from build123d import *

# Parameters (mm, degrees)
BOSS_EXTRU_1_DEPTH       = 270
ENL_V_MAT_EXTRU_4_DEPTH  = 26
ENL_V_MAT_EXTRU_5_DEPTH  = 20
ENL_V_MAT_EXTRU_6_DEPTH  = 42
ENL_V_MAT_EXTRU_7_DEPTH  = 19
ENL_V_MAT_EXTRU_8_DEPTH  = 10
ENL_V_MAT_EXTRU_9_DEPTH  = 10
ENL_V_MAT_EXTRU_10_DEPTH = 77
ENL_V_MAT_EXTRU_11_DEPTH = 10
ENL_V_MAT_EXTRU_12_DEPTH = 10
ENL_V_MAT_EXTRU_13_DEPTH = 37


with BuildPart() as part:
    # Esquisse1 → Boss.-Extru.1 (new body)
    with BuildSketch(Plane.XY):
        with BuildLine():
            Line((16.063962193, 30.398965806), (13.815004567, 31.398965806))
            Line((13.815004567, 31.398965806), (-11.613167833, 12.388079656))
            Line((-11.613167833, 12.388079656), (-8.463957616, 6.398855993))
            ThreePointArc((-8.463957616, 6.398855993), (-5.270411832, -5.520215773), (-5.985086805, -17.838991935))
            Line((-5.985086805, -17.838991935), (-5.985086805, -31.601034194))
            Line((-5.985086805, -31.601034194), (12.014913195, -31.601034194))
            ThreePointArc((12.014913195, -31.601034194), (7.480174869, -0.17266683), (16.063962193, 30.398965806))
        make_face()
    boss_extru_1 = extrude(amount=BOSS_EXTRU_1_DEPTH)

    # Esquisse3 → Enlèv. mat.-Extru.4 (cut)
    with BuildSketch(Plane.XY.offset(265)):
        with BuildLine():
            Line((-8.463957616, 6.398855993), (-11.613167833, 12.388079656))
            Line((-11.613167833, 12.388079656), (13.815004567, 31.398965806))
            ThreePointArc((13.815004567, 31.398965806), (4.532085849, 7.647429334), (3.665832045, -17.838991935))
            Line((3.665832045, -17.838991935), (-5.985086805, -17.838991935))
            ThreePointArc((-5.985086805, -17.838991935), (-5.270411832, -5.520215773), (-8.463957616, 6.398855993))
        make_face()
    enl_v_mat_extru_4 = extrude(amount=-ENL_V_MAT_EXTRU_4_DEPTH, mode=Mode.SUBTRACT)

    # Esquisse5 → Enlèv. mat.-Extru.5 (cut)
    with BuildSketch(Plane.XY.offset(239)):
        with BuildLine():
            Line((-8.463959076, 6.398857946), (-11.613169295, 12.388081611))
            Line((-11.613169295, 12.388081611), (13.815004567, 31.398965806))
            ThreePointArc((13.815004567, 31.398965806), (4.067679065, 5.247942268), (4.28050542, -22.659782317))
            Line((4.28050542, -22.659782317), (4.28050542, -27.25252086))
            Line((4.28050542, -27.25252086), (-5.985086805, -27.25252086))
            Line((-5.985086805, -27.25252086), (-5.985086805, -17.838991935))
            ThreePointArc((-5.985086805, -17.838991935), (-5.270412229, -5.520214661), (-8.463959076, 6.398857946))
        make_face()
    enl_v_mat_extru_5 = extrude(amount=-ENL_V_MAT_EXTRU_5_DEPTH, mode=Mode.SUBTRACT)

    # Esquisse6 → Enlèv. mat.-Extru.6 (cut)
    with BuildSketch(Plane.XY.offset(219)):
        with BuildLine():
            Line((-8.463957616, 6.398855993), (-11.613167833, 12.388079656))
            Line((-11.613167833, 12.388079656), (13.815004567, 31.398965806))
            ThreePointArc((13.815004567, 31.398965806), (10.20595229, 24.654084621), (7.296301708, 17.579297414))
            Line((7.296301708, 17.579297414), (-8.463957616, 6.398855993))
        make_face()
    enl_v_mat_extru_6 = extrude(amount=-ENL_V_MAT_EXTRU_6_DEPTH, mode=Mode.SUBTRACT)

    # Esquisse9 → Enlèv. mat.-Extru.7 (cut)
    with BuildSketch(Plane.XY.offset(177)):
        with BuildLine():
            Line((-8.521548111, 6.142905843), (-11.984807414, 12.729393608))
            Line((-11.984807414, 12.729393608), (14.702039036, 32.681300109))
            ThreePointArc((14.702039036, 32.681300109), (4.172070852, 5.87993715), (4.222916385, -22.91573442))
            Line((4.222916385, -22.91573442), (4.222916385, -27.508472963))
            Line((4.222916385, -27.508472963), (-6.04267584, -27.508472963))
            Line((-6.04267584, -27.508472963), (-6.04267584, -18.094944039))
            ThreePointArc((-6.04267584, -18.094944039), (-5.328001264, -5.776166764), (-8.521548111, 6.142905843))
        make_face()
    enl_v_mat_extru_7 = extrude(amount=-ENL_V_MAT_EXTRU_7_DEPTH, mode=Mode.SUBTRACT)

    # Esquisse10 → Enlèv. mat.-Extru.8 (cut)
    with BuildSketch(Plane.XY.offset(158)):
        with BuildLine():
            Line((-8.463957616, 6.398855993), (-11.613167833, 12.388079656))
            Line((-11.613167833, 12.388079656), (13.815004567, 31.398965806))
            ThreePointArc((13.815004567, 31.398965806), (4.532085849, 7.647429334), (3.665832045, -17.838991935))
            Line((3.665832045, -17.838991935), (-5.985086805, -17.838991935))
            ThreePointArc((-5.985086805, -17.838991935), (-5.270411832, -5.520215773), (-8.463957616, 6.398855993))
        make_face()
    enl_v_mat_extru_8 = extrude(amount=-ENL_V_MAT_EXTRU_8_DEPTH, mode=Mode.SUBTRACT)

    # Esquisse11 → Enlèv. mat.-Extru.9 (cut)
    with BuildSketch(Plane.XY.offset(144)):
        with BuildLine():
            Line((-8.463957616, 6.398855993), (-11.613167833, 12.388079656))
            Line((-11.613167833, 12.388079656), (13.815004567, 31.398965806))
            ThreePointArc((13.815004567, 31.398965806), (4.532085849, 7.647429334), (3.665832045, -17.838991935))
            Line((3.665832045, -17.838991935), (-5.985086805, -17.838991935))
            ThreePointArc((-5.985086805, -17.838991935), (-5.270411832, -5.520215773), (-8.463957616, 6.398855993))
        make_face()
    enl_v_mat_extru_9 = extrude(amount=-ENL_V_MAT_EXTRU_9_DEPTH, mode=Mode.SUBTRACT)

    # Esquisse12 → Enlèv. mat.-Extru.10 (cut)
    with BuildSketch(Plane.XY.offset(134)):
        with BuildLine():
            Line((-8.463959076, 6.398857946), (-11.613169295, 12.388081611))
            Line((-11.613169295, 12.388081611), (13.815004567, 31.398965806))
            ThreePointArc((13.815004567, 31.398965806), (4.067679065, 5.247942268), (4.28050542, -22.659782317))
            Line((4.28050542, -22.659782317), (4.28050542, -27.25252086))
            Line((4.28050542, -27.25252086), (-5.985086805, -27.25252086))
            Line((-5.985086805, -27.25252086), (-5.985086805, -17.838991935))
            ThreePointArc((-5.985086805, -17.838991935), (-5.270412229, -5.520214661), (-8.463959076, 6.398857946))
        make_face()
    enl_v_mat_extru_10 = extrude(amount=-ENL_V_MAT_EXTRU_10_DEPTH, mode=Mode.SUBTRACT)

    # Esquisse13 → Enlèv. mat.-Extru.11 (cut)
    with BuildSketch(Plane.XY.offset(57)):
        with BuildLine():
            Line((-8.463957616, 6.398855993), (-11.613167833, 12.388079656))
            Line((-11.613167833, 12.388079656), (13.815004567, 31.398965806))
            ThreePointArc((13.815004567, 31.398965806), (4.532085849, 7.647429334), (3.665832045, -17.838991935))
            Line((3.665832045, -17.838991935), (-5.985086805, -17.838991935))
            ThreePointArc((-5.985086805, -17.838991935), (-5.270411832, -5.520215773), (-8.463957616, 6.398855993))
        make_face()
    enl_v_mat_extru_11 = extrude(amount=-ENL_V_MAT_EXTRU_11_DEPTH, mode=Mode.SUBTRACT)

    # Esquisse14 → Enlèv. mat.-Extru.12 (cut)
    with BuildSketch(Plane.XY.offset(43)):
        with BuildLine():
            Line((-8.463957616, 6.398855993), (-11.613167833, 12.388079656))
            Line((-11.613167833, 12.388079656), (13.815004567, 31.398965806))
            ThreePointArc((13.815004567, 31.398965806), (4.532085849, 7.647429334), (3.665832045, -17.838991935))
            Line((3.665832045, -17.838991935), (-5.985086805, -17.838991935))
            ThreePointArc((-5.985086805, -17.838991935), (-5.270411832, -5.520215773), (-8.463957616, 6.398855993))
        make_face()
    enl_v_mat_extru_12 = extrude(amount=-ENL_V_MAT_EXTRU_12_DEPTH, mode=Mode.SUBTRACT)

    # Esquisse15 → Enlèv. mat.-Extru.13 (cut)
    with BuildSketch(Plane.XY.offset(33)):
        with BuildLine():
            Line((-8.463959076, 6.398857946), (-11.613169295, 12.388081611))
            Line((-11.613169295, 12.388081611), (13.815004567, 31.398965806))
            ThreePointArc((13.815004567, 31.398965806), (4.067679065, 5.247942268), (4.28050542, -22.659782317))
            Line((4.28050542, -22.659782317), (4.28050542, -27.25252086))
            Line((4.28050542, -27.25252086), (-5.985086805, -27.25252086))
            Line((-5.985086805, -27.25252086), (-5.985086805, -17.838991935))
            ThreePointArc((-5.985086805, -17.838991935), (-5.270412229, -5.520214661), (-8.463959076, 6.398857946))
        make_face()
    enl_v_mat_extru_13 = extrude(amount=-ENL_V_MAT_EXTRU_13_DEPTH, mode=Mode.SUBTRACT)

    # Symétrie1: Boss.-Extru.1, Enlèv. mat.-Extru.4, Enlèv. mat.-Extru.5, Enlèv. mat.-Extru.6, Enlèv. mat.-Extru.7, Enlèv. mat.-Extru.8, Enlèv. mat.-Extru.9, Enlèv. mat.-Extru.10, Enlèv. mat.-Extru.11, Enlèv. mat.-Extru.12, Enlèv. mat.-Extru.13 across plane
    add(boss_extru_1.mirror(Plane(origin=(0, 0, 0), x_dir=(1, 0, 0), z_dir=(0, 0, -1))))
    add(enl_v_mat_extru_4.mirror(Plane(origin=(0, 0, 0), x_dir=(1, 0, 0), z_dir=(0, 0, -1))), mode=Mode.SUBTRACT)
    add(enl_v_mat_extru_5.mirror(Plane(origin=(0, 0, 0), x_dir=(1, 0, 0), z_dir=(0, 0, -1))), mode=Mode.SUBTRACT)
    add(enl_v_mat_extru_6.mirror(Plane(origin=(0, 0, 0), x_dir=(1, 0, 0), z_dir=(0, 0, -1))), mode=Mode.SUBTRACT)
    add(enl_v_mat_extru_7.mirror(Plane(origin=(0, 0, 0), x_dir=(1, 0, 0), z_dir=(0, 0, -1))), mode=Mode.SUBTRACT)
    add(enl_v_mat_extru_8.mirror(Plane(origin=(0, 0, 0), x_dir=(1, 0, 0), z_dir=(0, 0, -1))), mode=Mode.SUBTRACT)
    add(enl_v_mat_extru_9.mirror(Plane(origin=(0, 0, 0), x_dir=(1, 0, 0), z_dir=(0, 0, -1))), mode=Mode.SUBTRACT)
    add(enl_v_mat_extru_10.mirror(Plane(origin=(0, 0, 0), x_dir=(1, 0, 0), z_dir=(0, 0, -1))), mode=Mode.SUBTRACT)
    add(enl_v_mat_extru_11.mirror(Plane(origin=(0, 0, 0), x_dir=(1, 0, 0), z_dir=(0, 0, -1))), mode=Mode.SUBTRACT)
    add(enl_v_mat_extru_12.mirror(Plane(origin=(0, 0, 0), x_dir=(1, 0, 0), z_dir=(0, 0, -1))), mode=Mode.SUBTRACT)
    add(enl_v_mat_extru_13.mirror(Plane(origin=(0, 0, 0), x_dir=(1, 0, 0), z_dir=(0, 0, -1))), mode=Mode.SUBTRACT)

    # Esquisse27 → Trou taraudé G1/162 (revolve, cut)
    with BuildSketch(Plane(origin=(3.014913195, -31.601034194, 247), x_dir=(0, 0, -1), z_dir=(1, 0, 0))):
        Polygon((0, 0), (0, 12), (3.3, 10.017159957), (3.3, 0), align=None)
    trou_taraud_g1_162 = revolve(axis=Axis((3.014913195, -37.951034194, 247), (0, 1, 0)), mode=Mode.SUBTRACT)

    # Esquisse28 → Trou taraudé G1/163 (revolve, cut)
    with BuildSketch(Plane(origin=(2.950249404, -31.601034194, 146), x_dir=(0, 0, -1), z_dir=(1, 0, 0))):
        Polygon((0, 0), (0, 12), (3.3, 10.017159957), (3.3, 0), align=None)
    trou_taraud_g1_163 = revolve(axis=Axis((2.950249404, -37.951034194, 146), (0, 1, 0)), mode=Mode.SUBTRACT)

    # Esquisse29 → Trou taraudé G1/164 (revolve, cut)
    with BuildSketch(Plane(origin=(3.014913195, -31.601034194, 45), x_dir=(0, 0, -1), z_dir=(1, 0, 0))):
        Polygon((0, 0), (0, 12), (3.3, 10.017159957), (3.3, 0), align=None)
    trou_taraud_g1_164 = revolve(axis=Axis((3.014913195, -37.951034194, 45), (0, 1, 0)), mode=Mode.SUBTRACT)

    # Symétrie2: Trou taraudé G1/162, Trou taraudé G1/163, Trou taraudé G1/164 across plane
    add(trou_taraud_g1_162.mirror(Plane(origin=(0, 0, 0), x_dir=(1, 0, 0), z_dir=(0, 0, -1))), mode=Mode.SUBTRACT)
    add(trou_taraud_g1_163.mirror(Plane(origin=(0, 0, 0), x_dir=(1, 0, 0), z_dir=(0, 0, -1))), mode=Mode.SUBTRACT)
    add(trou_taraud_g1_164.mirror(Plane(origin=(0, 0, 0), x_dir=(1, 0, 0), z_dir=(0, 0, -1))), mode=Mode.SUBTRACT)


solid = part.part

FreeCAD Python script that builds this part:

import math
import FreeCAD as App
import Part
import Sketcher
Q = App.Units.Quantity


def add_polygon(sketch, points):
    """Adds a closed chain of lines whose ends are joined by coincident constraints."""
    first, n = sketch.GeometryCount, len(points)
    for a, b in zip(points, points[1:] + points[:1]):
        sketch.addGeometry(Part.LineSegment(App.Vector(*a, 0), App.Vector(*b, 0)), False)
    for i in range(n):
        sketch.addConstraint(Sketcher.Constraint("Coincident", first + i, 2, first + (i + 1) % n, 1))

doc = App.newDocument("Part")
params = doc.addObject("Spreadsheet::Sheet", "Params")
for row, (alias, value) in enumerate([
    ("sketch1_width", "18 mm"),
    ("pad1_length", "270 mm"),
    ("pocket1_length", "26 mm"),
    ("pocket2_length", "20 mm"),
    ("pocket3_length", "42 mm"),
    ("pocket4_length", "19 mm"),
    ("pocket5_length", "10 mm"),
    ("pocket6_length", "10 mm"),
    ("pocket7_length", "77 mm"),
    ("pocket8_length", "10 mm"),
    ("pocket9_length", "10 mm"),
    ("pocket10_length", "37 mm"),
    ("sketch12_width", "12 mm"),
    ("sketch12_height", "3.3 mm"),
    ("groove_angle", "360 deg"),
    ("sketch13_width", "12 mm"),
    ("sketch13_height", "3.3 mm"),
    ("groove2_angle", "360 deg"),
    ("sketch14_width", "12 mm"),
    ("sketch14_height", "3.3 mm"),
    ("groove3_angle", "360 deg"),
], start=1):
    params.set(f"A{row}", alias)
    params.set(f"B{row}", "=" + value)
    params.setAlias(f"B{row}", alias)

body = doc.addObject("PartDesign::Body", "Body")

# Sketch on XY plane
sketch1 = doc.addObject("Sketcher::SketchObject", "Sketch")
body.addObject(sketch1)
sketch1.AttachmentSupport = (doc.XY_Plane, [""])
sketch1.MapMode = "FlatFace"
sketch1.addGeometry(Part.LineSegment(App.Vector(16.1, 30.4, 0), App.Vector(13.8, 31.4, 0)), False)
sketch1.addGeometry(Part.LineSegment(App.Vector(13.8, 31.4, 0), App.Vector(-11.6, 12.4, 0)), False)
sketch1.addGeometry(Part.LineSegment(App.Vector(-11.6, 12.4, 0), App.Vector(-8.5, 6.4, 0)), False)
sketch1.addGeometry(Part.ArcOfCircle(Part.Circle(App.Vector(-43.8, -9.5, 0), App.Vector(0, 0, 1), 38.8), math.radians(-12), math.radians(24)), False)
sketch1.addGeometry(Part.LineSegment(App.Vector(-6, -17.8, 0), App.Vector(-6, -31.6, 0)), False)
sketch1.addGeometry(Part.LineSegment(App.Vector(-6, -31.6, 0), App.Vector(12, -31.6, 0)), False)
sketch1.addGeometry(Part.ArcOfCircle(Part.Circle(App.Vector(84, -5.2, 0), App.Vector(0, 0, 1), 76.7), math.radians(152), math.radians(200)), False)
sketch1.addConstraint(Sketcher.Constraint("Coincident", 0, 2, 1, 1))
sketch1.addConstraint(Sketcher.Constraint("Coincident", 1, 2, 2, 1))
sketch1.addConstraint(Sketcher.Constraint("Coincident", 2, 2, 3, 2))
sketch1.addConstraint(Sketcher.Constraint("Coincident", 3, 1, 4, 1))
sketch1.addConstraint(Sketcher.Constraint("Coincident", 4, 2, 5, 1))
sketch1.addConstraint(Sketcher.Constraint("Coincident", 5, 2, 6, 2))
sketch1.addConstraint(Sketcher.Constraint("Coincident", 6, 1, 0, 1))
sketch1.addConstraint(Sketcher.Constraint("Vertical", 4))
sketch1.addConstraint(Sketcher.Constraint("Horizontal", 5))
sketch1.addConstraint(Sketcher.Constraint("DistanceX", 5, 1, 5, 2, Q("18 mm")))
sketch1.addConstraint(Sketcher.Constraint("DistanceY", 4, 2, 0, 2, Q("63 mm")))
sketch1.addConstraint(Sketcher.Constraint("DistanceY", 6, 1, 0, 2, Q("1 mm")))
sketch1.addConstraint(Sketcher.Constraint("Radius", 3, Q("38.757505 mm")))
sketch1.addConstraint(Sketcher.Constraint("Radius", 6, Q("76.697853 mm")))
sketch1.addConstraint(Sketcher.Constraint("DistanceX", 3, 3, 0, 2, Q("57.641802 mm")))
sketch1.addConstraint(Sketcher.Constraint("DistanceY", 6, 3, 2, 2, Q("11.5698 mm")))
sketch1.addConstraint(Sketcher.Constraint("Distance", 0, Q("2.461262 mm")))
sketch1.addConstraint(Sketcher.Constraint("DistanceY", 4, 2, 4, 1, Q("13.762042 mm")))
sketch1.addConstraint(Sketcher.Constraint("DistanceX", -1, 1, 6, 3, Q("84.014989 mm")))
sketch1.addConstraint(Sketcher.Constraint("DistanceY", -1, 1, 1, 2, Q("12.38808 mm")))
sketch1.addConstraint(Sketcher.Constraint("DistanceY", 3, 1, -1, 1, Q("17.838992 mm")))
sketch1.addConstraint(Sketcher.Constraint("DistanceY", 3, 3, 0, 2, Q("40.862448 mm")))
sketch1.addConstraint(Sketcher.Constraint("DistanceX", 3, 3, 1, 2, Q("32.213629 mm")))
sketch1.setExpression("Constraints[9]", "Params.sketch1_width")
pad1 = doc.addObject("PartDesign::Pad", "Pad")
body.addObject(pad1)
pad1.Profile = sketch1
pad1.setExpression("Length", "Params.pad1_length")

# Sketch on XY plane
sketch2 = doc.addObject("Sketcher::SketchObject", "Sketch001")
body.addObject(sketch2)
sketch2.AttachmentSupport = (doc.XY_Plane, [""])
sketch2.MapMode = "FlatFace"
sketch2.AttachmentOffset = App.Placement(App.Vector(0, 0, 265), App.Rotation())
sketch2.addGeometry(Part.LineSegment(App.Vector(-12, 12, 0), App.Vector(-8, 6, 0)), False)
sketch2.addGeometry(Part.ArcOfCircle(Part.Circle(App.Vector(-44, -9, 0), App.Vector(0, 0, 1), 39), math.radians(-12), math.radians(24)), False)
sketch2.addGeometry(Part.LineSegment(App.Vector(-6, -18, 0), App.Vector(4, -18, 0)), False)
sketch2.addGeometry(Part.ArcOfCircle(Part.Circle(App.Vector(79, -8, 0), App.Vector(0, 0, 1), 76), math.radians(149), math.radians(188)), False)
sketch2.addGeometry(Part.LineSegment(App.Vector(14, 31, 0), App.Vector(-12, 12, 0)), False)
sketch2.addConstraint(Sketcher.Constraint("Coincident", 0, 2, 1, 2))
sketch2.addConstraint(Sketcher.Constraint("Coincident", 1, 1, 2, 1))
sketch2.addConstraint(Sketcher.Constraint("Coincident", 2, 2, 3, 2))
sketch2.addConstraint(Sketcher.Constraint("Coincident", 3, 1, 4, 1))
sketch2.addConstraint(Sketcher.Constraint("Coincident", 4, 2, 0, 1))
sketch2.addConstraint(Sketcher.Constraint("Horizontal", 2))
sketch2.addConstraint(Sketcher.Constraint("Radius", 1, Q("38.757505 mm")))
sketch2.addConstraint(Sketcher.Constraint("Radius", 3, Q("75.673474 mm")))
sketch2.addConstraint(Sketcher.Constraint("DistanceX", 4, 2, 2, 2, Q("15.279 mm")))
sketch2.addConstraint(Sketcher.Constraint("DistanceX", 2, 1, 2, 2, Q("9.650919 mm")))
sketch2.addConstraint(Sketcher.Constraint("DistanceX", 1, 3, 3, 1, Q("57.641802 mm")))
sketch2.addConstraint(Sketcher.Constraint("DistanceX", -1, 1, 3, 3, Q("78.64745 mm")))
sketch2.addConstraint(Sketcher.Constraint("DistanceY", 1, 1, -1, 1, Q("17.838992 mm")))
sketch2.addConstraint(Sketcher.Constraint("DistanceY", -1, 1, 4, 2, Q("12.38808 mm")))
sketch2.addConstraint(Sketcher.Constraint("DistanceX", 1, 3, 0, 2, Q("35.36284 mm")))
sketch2.addConstraint(Sketcher.Constraint("DistanceX", 0, 2, 1, 1, Q("2.478871 mm")))
sketch2.addConstraint(Sketcher.Constraint("DistanceY", 0, 2, 3, 1, Q("25.00011 mm")))
pocket1 = doc.addObject("PartDesign::Pocket", "Pocket")
body.addObject(pocket1)
pocket1.Profile = sketch2
pocket1.setExpression("Length", "Params.pocket1_length")

# Sketch on XY plane
sketch3 = doc.addObject("Sketcher::SketchObject", "Sketch002")
body.addObject(sketch3)
sketch3.AttachmentSupport = (doc.XY_Plane, [""])
sketch3.MapMode = "FlatFace"
sketch3.AttachmentOffset = App.Placement(App.Vector(0, 0, 239), App.Rotation())
sketch3.addGeometry(Part.LineSegment(App.Vector(-11.6, 12.4, 0), App.Vector(-8.5, 6.4, 0)), False)
sketch3.addGeometry(Part.ArcOfCircle(Part.Circle(App.Vector(-43.8, -9.5, 0), App.Vector(0, 0, 1), 38.8), math.radians(-12), math.radians(24)), False)
sketch3.addGeometry(Part.LineSegment(App.Vector(-6, -17.8, 0), App.Vector(-6, -27.3, 0)), False)
sketch3.addGeometry(Part.LineSegment(App.Vector(-6, -27.3, 0), App.Vector(4.3, -27.3, 0)), False)
sketch3.addGeometry(Part.LineSegment(App.Vector(4.3, -27.3, 0), App.Vector(4.3, -22.7, 0)), False)
sketch3.addGeometry(Part.ArcOfCircle(Part.Circle(App.Vector(79.9, -8.1, 0), App.Vector(0, 0, 1), 77), math.radians(149), math.radians(191)), False)
sketch3.addGeometry(Part.LineSegment(App.Vector(13.8, 31.4, 0), App.Vector(-11.6, 12.4, 0)), False)
sketch3.addConstraint(Sketcher.Constraint("Coincident", 0, 2, 1, 2))
sketch3.addConstraint(Sketcher.Constraint("Coincident", 1, 1, 2, 1))
sketch3.addConstraint(Sketcher.Constraint("Coincident", 2, 2, 3, 1))
sketch3.addConstraint(Sketcher.Constraint("Coincident", 3, 2, 4, 1))
sketch3.addConstraint(Sketcher.Constraint("Coincident", 4, 2, 5, 2))
sketch3.addConstraint(Sketcher.Constraint("Coincident", 5, 1, 6, 1))
sketch3.addConstraint(Sketcher.Constraint("Coincident", 6, 2, 0, 1))
sketch3.addConstraint(Sketcher.Constraint("Vertical", 2))
sketch3.addConstraint(Sketcher.Constraint("Horizontal", 3))
sketch3.addConstraint(Sketcher.Constraint("Vertical", 4))
sketch3.addConstraint(Sketcher.Constraint("Radius", 5, Q("77.01161 mm")))
sketch3.addConstraint(Sketcher.Constraint("Radius", 1, Q("38.757505 mm")))
sketch3.addConstraint(Sketcher.Constraint("DistanceY", 2, 2, 2, 1, Q("9.413529 mm")))
sketch3.addConstraint(Sketcher.Constraint("DistanceY", 4, 1, 4, 2, Q("4.592739 mm")))
sketch3.addConstraint(Sketcher.Constraint("DistanceX", 1, 1, 5, 3, Q("85.8938 mm")))
sketch3.addConstraint(Sketcher.Constraint("DistanceY", 4, 2, 1, 3, Q("13.196299 mm")))
sketch3.addConstraint(Sketcher.Constraint("DistanceX", 4, 2, 5, 1, Q("9.534499 mm")))
sketch3.addConstraint(Sketcher.Constraint("DistanceX", 3, 1, 3, 2, Q("10.265592 mm")))
sketch3.addConstraint(Sketcher.Constraint("DistanceX", 0, 2, -1, 1, Q("8.463959 mm")))
sketch3.addConstraint(Sketcher.Constraint("DistanceY", 1, 1, -1, 1, Q("17.838992 mm")))
sketch3.addConstraint(Sketcher.Constraint("DistanceX", 6, 2, -1, 1, Q("11.613169 mm")))
sketch3.addConstraint(Sketcher.Constraint("DistanceY", -1, 1, 6, 2, Q("12.388082 mm")))
sketch3.addConstraint(Sketcher.Constraint("DistanceX", 1, 3, 0, 2, Q("35.362838 mm")))
pocket2 = doc.addObject("PartDesign::Pocket", "Pocket001")
body.addObject(pocket2)
pocket2.Profile = sketch3
pocket2.setExpression("Length", "Params.pocket2_length")

# Sketch on XY plane
sketch4 = doc.addObject("Sketcher::SketchObject", "Sketch003")
body.addObject(sketch4)
sketch4.AttachmentSupport = (doc.XY_Plane, [""])
sketch4.MapMode = "FlatFace"
sketch4.AttachmentOffset = App.Placement(App.Vector(0, 0, 219), App.Rotation())
sketch4.addGeometry(Part.LineSegment(App.Vector(-12, 12, 0), App.Vector(-8, 6, 0)), False)
sketch4.addGeometry(Part.LineSegment(App.Vector(-8, 6, 0), App.Vector(7, 18, 0)), False)
sketch4.addGeometry(Part.ArcOfCircle(Part.Circle(App.Vector(79, -8, 0), App.Vector(0, 0, 1), 76), math.radians(148.95), math.radians(160.54)), False)
sketch4.addGeometry(Part.LineSegment(App.Vector(14, 31, 0), App.Vector(-12, 12, 0)), False)
sketch4.addConstraint(Sketcher.Constraint("Coincident", 0, 2, 1, 1))
sketch4.addConstraint(Sketcher.Constraint("Coincident", 1, 2, 2, 2))
sketch4.addConstraint(Sketcher.Constraint("Coincident", 2, 1, 3, 1))
sketch4.addConstraint(Sketcher.Constraint("Coincident", 3, 2, 0, 1))
sketch4.addConstraint(Sketcher.Constraint("Radius", 2, Q("75.673474 mm")))
sketch4.addConstraint(Sketcher.Constraint("DistanceX", -1, 1, 1, 2, Q("7.296302 mm")))
sketch4.addConstraint(Sketcher.Constraint("Distance", 1, Q("19.323251 mm")))
sketch4.addConstraint(Sketcher.Constraint("DistanceX", -1, 1, 2, 3, Q("78.64745 mm")))
sketch4.addConstraint(Sketcher.Constraint("DistanceY", -1, 1, 3, 2, Q("12.38808 mm")))
sketch4.addConstraint(Sketcher.Constraint("DistanceX", 0, 2, 1, 2, Q("15.760259 mm")))
sketch4.addConstraint(Sketcher.Constraint("DistanceY", 1, 2, 2, 1, Q("13.819668 mm")))
sketch4.addConstraint(Sketcher.Constraint("DistanceX", 3, 2, 0, 2, Q("3.14921 mm")))
sketch4.addConstraint(Sketcher.Constraint("Distance", 0, Q("6.766707 mm")))
pocket3 = doc.addObject("PartDesign::Pocket", "Pocket002")
body.addObject(pocket3)
pocket3.Profile = sketch4
pocket3.setExpression("Length", "Params.pocket3_length")

# Sketch on XY plane
sketch5 = doc.addObject("Sketcher::SketchObject", "Sketch004")
body.addObject(sketch5)
sketch5.AttachmentSupport = (doc.XY_Plane, [""])
sketch5.MapMode = "FlatFace"
sketch5.AttachmentOffset = App.Placement(App.Vector(0, 0, 177), App.Rotation())
sketch5.addGeometry(Part.LineSegment(App.Vector(-12, 12.7, 0), App.Vector(-8.5, 6.1, 0)), False)
sketch5.addGeometry(Part.ArcOfCircle(Part.Circle(App.Vector(-43.9, -9.7, 0), App.Vector(0, 0, 1), 38.8), math.radians(-12), math.radians(24)), False)
sketch5.addGeometry(Part.LineSegment(App.Vector(-6, -18.1, 0), App.Vector(-6, -27.5, 0)), False)
sketch5.addGeometry(Part.LineSegment(App.Vector(-6, -27.5, 0), App.Vector(4.2, -27.5, 0)), False)
sketch5.addGeometry(Part.LineSegment(App.Vector(4.2, -27.5, 0), App.Vector(4.2, -22.9, 0)), False)
sketch5.addGeometry(Part.ArcOfCircle(Part.Circle(App.Vector(79.9, -8.4, 0), App.Vector(0, 0, 1), 77), math.radians(148), math.radians(191)), False)
sketch5.addGeometry(Part.LineSegment(App.Vector(14.7, 32.7, 0), App.Vector(-12, 12.7, 0)), False)
sketch5.addConstraint(Sketcher.Constraint("Coincident", 0, 2, 1, 2))
sketch5.addConstraint(Sketcher.Constraint("Coincident", 1, 1, 2, 1))
sketch5.addConstraint(Sketcher.Constraint("Coincident", 2, 2, 3, 1))
sketch5.addConstraint(Sketcher.Constraint("Coincident", 3, 2, 4, 1))
sketch5.addConstraint(Sketcher.Constraint("Coincident", 4, 2, 5, 2))
sketch5.addConstraint(Sketcher.Constraint("Coincident", 5, 1, 6, 1))
sketch5.addConstraint(Sketcher.Constraint("Coincident", 6, 2, 0, 1))
sketch5.addConstraint(Sketcher.Constraint("Vertical", 2))
sketch5.addConstraint(Sketcher.Constraint("Horizontal", 3))
sketch5.addConstraint(Sketcher.Constraint("Vertical", 4))
sketch5.addConstraint(Sketcher.Constraint("Radius", 5, Q("77.01161 mm")))
sketch5.addConstraint(Sketcher.Constraint("Radius", 1, Q("38.757505 mm")))
sketch5.addConstraint(Sketcher.Constraint("DistanceY", 2, 2, 2, 1, Q("9.413529 mm")))
sketch5.addConstraint(Sketcher.Constraint("DistanceY", 4, 1, 4, 2, Q("4.592739 mm")))
sketch5.addConstraint(Sketcher.Constraint("DistanceY", -1, 1, 5, 1, Q("32.6813 mm")))
sketch5.addConstraint(Sketcher.Constraint("DistanceX", 1, 1, 5, 3, Q("85.8938 mm")))
sketch5.addConstraint(Sketcher.Constraint("DistanceY", 4, 2, 1, 3, Q("13.196299 mm")))
sketch5.addConstraint(Sketcher.Constraint("Distance", 6, Q("33.320659 mm")))
sketch5.addConstraint(Sketcher.Constraint("DistanceX", 3, 1, 3, 2, Q("10.265592 mm")))
sketch5.addConstraint(Sketcher.Constraint("DistanceX", 0, 2, -1, 1, Q("8.521548 mm")))
sketch5.addConstraint(Sketcher.Constraint("DistanceX", -1, 1, 5, 1, Q("14.702039 mm")))
sketch5.addConstraint(Sketcher.Constraint("DistanceX", 1, 3, 0, 2, Q("35.362838 mm")))
sketch5.addConstraint(Sketcher.Constraint("DistanceX", 6, 2, 0, 2, Q("3.463259 mm")))
pocket4 = doc.addObject("PartDesign::Pocket", "Pocket003")
body.addObject(pocket4)
pocket4.Profile = sketch5
pocket4.setExpression("Length", "Params.pocket4_length")

# Sketch on XY plane
sketch6 = doc.addObject("Sketcher::SketchObject", "Sketch005")
body.addObject(sketch6)
sketch6.AttachmentSupport = (doc.XY_Plane, [""])
sketch6.MapMode = "FlatFace"
sketch6.AttachmentOffset = App.Placement(App.Vector(0, 0, 158), App.Rotation())
sketch6.addGeometry(Part.LineSegment(App.Vector(-12, 12, 0), App.Vector(-8, 6, 0)), False)
sketch6.addGeometry(Part.ArcOfCircle(Part.Circle(App.Vector(-44, -9, 0), App.Vector(0, 0, 1), 39), math.radians(-12), math.radians(24)), False)
sketch6.addGeometry(Part.LineSegment(App.Vector(-6, -18, 0), App.Vector(4, -18, 0)), False)
sketch6.addGeometry(Part.ArcOfCircle(Part.Circle(App.Vector(79, -8, 0), App.Vector(0, 0, 1), 76), math.radians(149), math.radians(188)), False)
sketch6.addGeometry(Part.LineSegment(App.Vector(14, 31, 0), App.Vector(-12, 12, 0)), False)
sketch6.addConstraint(Sketcher.Constraint("Coincident", 0, 2, 1, 2))
sketch6.addConstraint(Sketcher.Constraint("Coincident", 1, 1, 2, 1))
sketch6.addConstraint(Sketcher.Constraint("Coincident", 2, 2, 3, 2))
sketch6.addConstraint(Sketcher.Constraint("Coincident", 3, 1, 4, 1))
sketch6.addConstraint(Sketcher.Constraint("Coincident", 4, 2, 0, 1))
sketch6.addConstraint(Sketcher.Constraint("Horizontal", 2))
sketch6.addConstraint(Sketcher.Constraint("Radius", 1, Q("38.757505 mm")))
sketch6.addConstraint(Sketcher.Constraint("Radius", 3, Q("75.673474 mm")))
sketch6.addConstraint(Sketcher.Constraint("DistanceX", 4, 2, 2, 2, Q("15.279 mm")))
sketch6.addConstraint(Sketcher.Constraint("DistanceX", 2, 1, 2, 2, Q("9.650919 mm")))
sketch6.addConstraint(Sketcher.Constraint("DistanceX", 1, 3, 3, 1, Q("57.641802 mm")))
sketch6.addConstraint(Sketcher.Constraint("DistanceX", -1, 1, 3, 3, Q("78.64745 mm")))
sketch6.addConstraint(Sketcher.Constraint("DistanceY", 1, 1, -1, 1, Q("17.838992 mm")))
sketch6.addConstraint(Sketcher.Constraint("DistanceY", -1, 1, 4, 2, Q("12.38808 mm")))
sketch6.addConstraint(Sketcher.Constraint("DistanceX", 1, 3, 0, 2, Q("35.36284 mm")))
sketch6.addConstraint(Sketcher.Constraint("DistanceX", 0, 2, 1, 1, Q("2.478871 mm")))
sketch6.addConstraint(Sketcher.Constraint("DistanceY", 0, 2, 3, 1, Q("25.00011 mm")))
pocket5 = doc.addObject("PartDesign::Pocket", "Pocket004")
body.addObject(pocket5)
pocket5.Profile = sketch6
pocket5.setExpression("Length", "Params.pocket5_length")

# Sketch on XY plane
sketch7 = doc.addObject("Sketcher::SketchObject", "Sketch006")
body.addObject(sketch7)
sketch7.AttachmentSupport = (doc.XY_Plane, [""])
sketch7.MapMode = "FlatFace"
sketch7.AttachmentOffset = App.Placement(App.Vector(0, 0, 144), App.Rotation())
sketch7.addGeometry(Part.LineSegment(App.Vector(-12, 12, 0), App.Vector(-8, 6, 0)), False)
sketch7.addGeometry(Part.ArcOfCircle(Part.Circle(App.Vector(-44, -9, 0), App.Vector(0, 0, 1), 39), math.radians(-12), math.radians(24)), False)
sketch7.addGeometry(Part.LineSegment(App.Vector(-6, -18, 0), App.Vector(4, -18, 0)), False)
sketch7.addGeometry(Part.ArcOfCircle(Part.Circle(App.Vector(79, -8, 0), App.Vector(0, 0, 1), 76), math.radians(149), math.radians(188)), False)
sketch7.addGeometry(Part.LineSegment(App.Vector(14, 31, 0), App.Vector(-12, 12, 0)), False)
sketch7.addConstraint(Sketcher.Constraint("Coincident", 0, 2, 1, 2))
sketch7.addConstraint(Sketcher.Constraint("Coincident", 1, 1, 2, 1))
sketch7.addConstraint(Sketcher.Constraint("Coincident", 2, 2, 3, 2))
sketch7.addConstraint(Sketcher.Constraint("Coincident", 3, 1, 4, 1))
sketch7.addConstraint(Sketcher.Constraint("Coincident", 4, 2, 0, 1))
sketch7.addConstraint(Sketcher.Constraint("Horizontal", 2))
sketch7.addConstraint(Sketcher.Constraint("Radius", 1, Q("38.757505 mm")))
sketch7.addConstraint(Sketcher.Constraint("Radius", 3, Q("75.673474 mm")))
sketch7.addConstraint(Sketcher.Constraint("DistanceX", 4, 2, 2, 2, Q("15.279 mm")))
sketch7.addConstraint(Sketcher.Constraint("DistanceX", 2, 1, 2, 2, Q("9.650919 mm")))
sketch7.addConstraint(Sketcher.Constraint("DistanceX", 1, 3, 3, 1, Q("57.641802 mm")))
sketch7.addConstraint(Sketcher.Constraint("DistanceX", -1, 1, 3, 3, Q("78.64745 mm")))
sketch7.addConstraint(Sketcher.Constraint("DistanceY", 1, 1, -1, 1, Q("17.838992 mm")))
sketch7.addConstraint(Sketcher.Constraint("DistanceY", -1, 1, 4, 2, Q("12.38808 mm")))
sketch7.addConstraint(Sketcher.Constraint("DistanceX", 1, 3, 0, 2, Q("35.36284 mm")))
sketch7.addConstraint(Sketcher.Constraint("DistanceX", 0, 2, 1, 1, Q("2.478871 mm")))
sketch7.addConstraint(Sketcher.Constraint("DistanceY", 0, 2, 3, 1, Q("25.00011 mm")))
pocket6 = doc.addObject("PartDesign::Pocket", "Pocket005")
body.addObject(pocket6)
pocket6.Profile = sketch7
pocket6.setExpression("Length", "Params.pocket6_length")

# Sketch on XY plane
sketch8 = doc.addObject("Sketcher::SketchObject", "Sketch007")
body.addObject(sketch8)
sketch8.AttachmentSupport = (doc.XY_Plane, [""])
sketch8.MapMode = "FlatFace"
sketch8.AttachmentOffset = App.Placement(App.Vector(0, 0, 134), App.Rotation())
sketch8.addGeometry(Part.LineSegment(App.Vector(-11.6, 12.4, 0), App.Vector(-8.5, 6.4, 0)), False)
sketch8.addGeometry(Part.ArcOfCircle(Part.Circle(App.Vector(-43.8, -9.5, 0), App.Vector(0, 0, 1), 38.8), math.radians(-12), math.radians(24)), False)
sketch8.addGeometry(Part.LineSegment(App.Vector(-6, -17.8, 0), App.Vector(-6, -27.3, 0)), False)
sketch8.addGeometry(Part.LineSegment(App.Vector(-6, -27.3, 0), App.Vector(4.3, -27.3, 0)), False)
sketch8.addGeometry(Part.LineSegment(App.Vector(4.3, -27.3, 0), App.Vector(4.3, -22.7, 0)), False)
sketch8.addGeometry(Part.ArcOfCircle(Part.Circle(App.Vector(79.9, -8.1, 0), App.Vector(0, 0, 1), 77), math.radians(149), math.radians(191)), False)
sketch8.addGeometry(Part.LineSegment(App.Vector(13.8, 31.4, 0), App.Vector(-11.6, 12.4, 0)), False)
sketch8.addConstraint(Sketcher.Constraint("Coincident", 0, 2, 1, 2))
sketch8.addConstraint(Sketcher.Constraint("Coincident", 1, 1, 2, 1))
sketch8.addConstraint(Sketcher.Constraint("Coincident", 2, 2, 3, 1))
sketch8.addConstraint(Sketcher.Constraint("Coincident", 3, 2, 4, 1))
sketch8.addConstraint(Sketcher.Constraint("Coincident", 4, 2, 5, 2))
sketch8.addConstraint(Sketcher.Constraint("Coincident", 5, 1, 6, 1))
sketch8.addConstraint(Sketcher.Constraint("Coincident", 6, 2, 0, 1))
sketch8.addConstraint(Sketcher.Constraint("Vertical", 2))
sketch8.addConstraint(Sketcher.Constraint("Horizontal", 3))
sketch8.addConstraint(Sketcher.Constraint("Vertical", 4))
sketch8.addConstraint(Sketcher.Constraint("Radius", 5, Q("77.01161 mm")))
sketch8.addConstraint(Sketcher.Constraint("Radius", 1, Q("38.757505 mm")))
sketch8.addConstraint(Sketcher.Constraint("DistanceY", 2, 2, 2, 1, Q("9.413529 mm")))
sketch8.addConstraint(Sketcher.Constraint("DistanceY", 4, 1, 4, 2, Q("4.592739 mm")))
sketch8.addConstraint(Sketcher.Constraint("DistanceX", 1, 1, 5, 3, Q("85.8938 mm")))
sketch8.addConstraint(Sketcher.Constraint("DistanceY", 4, 2, 1, 3, Q("13.196299 mm")))
sketch8.addConstraint(Sketcher.Constraint("DistanceX", 4, 2, 5, 1, Q("9.534499 mm")))
sketch8.addConstraint(Sketcher.Constraint("DistanceX", 3, 1, 3, 2, Q("10.265592 mm")))
sketch8.addConstraint(Sketcher.Constraint("DistanceX", 0, 2, -1, 1, Q("8.463959 mm")))
sketch8.addConstraint(Sketcher.Constraint("DistanceY", 1, 1, -1, 1, Q("17.838992 mm")))
sketch8.addConstraint(Sketcher.Constraint("DistanceX", 6, 2, -1, 1, Q("11.613169 mm")))
sketch8.addConstraint(Sketcher.Constraint("DistanceY", -1, 1, 6, 2, Q("12.388082 mm")))
sketch8.addConstraint(Sketcher.Constraint("DistanceX", 1, 3, 0, 2, Q("35.362838 mm")))
pocket7 = doc.addObject("PartDesign::Pocket", "Pocket006")
body.addObject(pocket7)
pocket7.Profile = sketch8
pocket7.setExpression("Length", "Params.pocket7_length")

# Sketch on XY plane
sketch9 = doc.addObject("Sketcher::SketchObject", "Sketch008")
body.addObject(sketch9)
sketch9.AttachmentSupport = (doc.XY_Plane, [""])
sketch9.MapMode = "FlatFace"
sketch9.AttachmentOffset = App.Placement(App.Vector(0, 0, 57), App.Rotation())
sketch9.addGeometry(Part.LineSegment(App.Vector(-12, 12, 0), App.Vector(-8, 6, 0)), False)
sketch9.addGeometry(Part.ArcOfCircle(Part.Circle(App.Vector(-44, -9, 0), App.Vector(0, 0, 1), 39), math.radians(-12), math.radians(24)), False)
sketch9.addGeometry(Part.LineSegment(App.Vector(-6, -18, 0), App.Vector(4, -18, 0)), False)
sketch9.addGeometry(Part.ArcOfCircle(Part.Circle(App.Vector(79, -8, 0), App.Vector(0, 0, 1), 76), math.radians(149), math.radians(188)), False)
sketch9.addGeometry(Part.LineSegment(App.Vector(14, 31, 0), App.Vector(-12, 12, 0)), False)
sketch9.addConstraint(Sketcher.Constraint("Coincident", 0, 2, 1, 2))
sketch9.addConstraint(Sketcher.Constraint("Coincident", 1, 1, 2, 1))
sketch9.addConstraint(Sketcher.Constraint("Coincident", 2, 2, 3, 2))
sketch9.addConstraint(Sketcher.Constraint("Coincident", 3, 1, 4, 1))
sketch9.addConstraint(Sketcher.Constraint("Coincident", 4, 2, 0, 1))
sketch9.addConstraint(Sketcher.Constraint("Horizontal", 2))
sketch9.addConstraint(Sketcher.Constraint("Radius", 1, Q("38.757505 mm")))
sketch9.addConstraint(Sketcher.Constraint("Radius", 3, Q("75.673474 mm")))
sketch9.addConstraint(Sketcher.Constraint("DistanceX", 4, 2, 2, 2, Q("15.279 mm")))
sketch9.addConstraint(Sketcher.Constraint("DistanceX", 2, 1, 2, 2, Q("9.650919 mm")))
sketch9.addConstraint(Sketcher.Constraint("DistanceX", 1, 3, 3, 1, Q("57.641802 mm")))
sketch9.addConstraint(Sketcher.Constraint("DistanceX", -1, 1, 3, 3, Q("78.64745 mm")))
sketch9.addConstraint(Sketcher.Constraint("DistanceY", 1, 1, -1, 1, Q("17.838992 mm")))
sketch9.addConstraint(Sketcher.Constraint("DistanceY", -1, 1, 4, 2, Q("12.38808 mm")))
sketch9.addConstraint(Sketcher.Constraint("DistanceX", 1, 3, 0, 2, Q("35.36284 mm")))
sketch9.addConstraint(Sketcher.Constraint("DistanceX", 0, 2, 1, 1, Q("2.478871 mm")))
sketch9.addConstraint(Sketcher.Constraint("DistanceY", 0, 2, 3, 1, Q("25.00011 mm")))
pocket8 = doc.addObject("PartDesign::Pocket", "Pocket007")
body.addObject(pocket8)
pocket8.Profile = sketch9
pocket8.setExpression("Length", "Params.pocket8_length")

# Sketch on XY plane
sketch10 = doc.addObject("Sketcher::SketchObject", "Sketch009")
body.addObject(sketch10)
sketch10.AttachmentSupport = (doc.XY_Plane, [""])
sketch10.MapMode = "FlatFace"
sketch10.AttachmentOffset = App.Placement(App.Vector(0, 0, 43), App.Rotation())
sketch10.addGeometry(Part.LineSegment(App.Vector(-12, 12, 0), App.Vector(-8, 6, 0)), False)
sketch10.addGeometry(Part.ArcOfCircle(Part.Circle(App.Vector(-44, -9, 0), App.Vector(0, 0, 1), 39), math.radians(-12), math.radians(24)), False)
sketch10.addGeometry(Part.LineSegment(App.Vector(-6, -18, 0), App.Vector(4, -18, 0)), False)
sketch10.addGeometry(Part.ArcOfCircle(Part.Circle(App.Vector(79, -8, 0), App.Vector(0, 0, 1), 76), math.radians(149), math.radians(188)), False)
sketch10.addGeometry(Part.LineSegment(App.Vector(14, 31, 0), App.Vector(-12, 12, 0)), False)
sketch10.addConstraint(Sketcher.Constraint("Coincident", 0, 2, 1, 2))
sketch10.addConstraint(Sketcher.Constraint("Coincident", 1, 1, 2, 1))
sketch10.addConstraint(Sketcher.Constraint("Coincident", 2, 2, 3, 2))
sketch10.addConstraint(Sketcher.Constraint("Coincident", 3, 1, 4, 1))
sketch10.addConstraint(Sketcher.Constraint("Coincident", 4, 2, 0, 1))
sketch10.addConstraint(Sketcher.Constraint("Horizontal", 2))
sketch10.addConstraint(Sketcher.Constraint("Radius", 1, Q("38.757505 mm")))
sketch10.addConstraint(Sketcher.Constraint("Radius", 3, Q("75.673474 mm")))
sketch10.addConstraint(Sketcher.Constraint("DistanceX", 4, 2, 2, 2, Q("15.279 mm")))
sketch10.addConstraint(Sketcher.Constraint("DistanceX", 2, 1, 2, 2, Q("9.650919 mm")))
sketch10.addConstraint(Sketcher.Constraint("DistanceX", 1, 3, 3, 1, Q("57.641802 mm")))
sketch10.addConstraint(Sketcher.Constraint("DistanceX", -1, 1, 3, 3, Q("78.64745 mm")))
sketch10.addConstraint(Sketcher.Constraint("DistanceY", 1, 1, -1, 1, Q("17.838992 mm")))
sketch10.addConstraint(Sketcher.Constraint("DistanceY", -1, 1, 4, 2, Q("12.38808 mm")))
sketch10.addConstraint(Sketcher.Constraint("DistanceX", 1, 3, 0, 2, Q("35.36284 mm")))
sketch10.addConstraint(Sketcher.Constraint("DistanceX", 0, 2, 1, 1, Q("2.478871 mm")))
sketch10.addConstraint(Sketcher.Constraint("DistanceY", 0, 2, 3, 1, Q("25.00011 mm")))
pocket9 = doc.addObject("PartDesign::Pocket", "Pocket008")
body.addObject(pocket9)
pocket9.Profile = sketch10
pocket9.setExpression("Length", "Params.pocket9_length")

# Sketch on XY plane
sketch11 = doc.addObject("Sketcher::SketchObject", "Sketch010")
body.addObject(sketch11)
sketch11.AttachmentSupport = (doc.XY_Plane, [""])
sketch11.MapMode = "FlatFace"
sketch11.AttachmentOffset = App.Placement(App.Vector(0, 0, 33), App.Rotation())
sketch11.addGeometry(Part.LineSegment(App.Vector(-11.6, 12.4, 0), App.Vector(-8.5, 6.4, 0)), False)
sketch11.addGeometry(Part.ArcOfCircle(Part.Circle(App.Vector(-43.8, -9.5, 0), App.Vector(0, 0, 1), 38.8), math.radians(-12), math.radians(24)), False)
sketch11.addGeometry(Part.LineSegment(App.Vector(-6, -17.8, 0), App.Vector(-6, -27.3, 0)), False)
sketch11.addGeometry(Part.LineSegment(App.Vector(-6, -27.3, 0), App.Vector(4.3, -27.3, 0)), False)
sketch11.addGeometry(Part.LineSegment(App.Vector(4.3, -27.3, 0), App.Vector(4.3, -22.7, 0)), False)
sketch11.addGeometry(Part.ArcOfCircle(Part.Circle(App.Vector(79.9, -8.1, 0), App.Vector(0, 0, 1), 77), math.radians(149), math.radians(191)), False)
sketch11.addGeometry(Part.LineSegment(App.Vector(13.8, 31.4, 0), App.Vector(-11.6, 12.4, 0)), False)
sketch11.addConstraint(Sketcher.Constraint("Coincident", 0, 2, 1, 2))
sketch11.addConstraint(Sketcher.Constraint("Coincident", 1, 1, 2, 1))
sketch11.addConstraint(Sketcher.Constraint("Coincident", 2, 2, 3, 1))
sketch11.addConstraint(Sketcher.Constraint("Coincident", 3, 2, 4, 1))
sketch11.addConstraint(Sketcher.Constraint("Coincident", 4, 2, 5, 2))
sketch11.addConstraint(Sketcher.Constraint("Coincident", 5, 1, 6, 1))
sketch11.addConstraint(Sketcher.Constraint("Coincident", 6, 2, 0, 1))
sketch11.addConstraint(Sketcher.Constraint("Vertical", 2))
sketch11.addConstraint(Sketcher.Constraint("Horizontal", 3))
sketch11.addConstraint(Sketcher.Constraint("Vertical", 4))
sketch11.addConstraint(Sketcher.Constraint("Radius", 5, Q("77.01161 mm")))
sketch11.addConstraint(Sketcher.Constraint("Radius", 1, Q("38.757505 mm")))
sketch11.addConstraint(Sketcher.Constraint("DistanceY", 2, 2, 2, 1, Q("9.413529 mm")))
sketch11.addConstraint(Sketcher.Constraint("DistanceY", 4, 1, 4, 2, Q("4.592739 mm")))
sketch11.addConstraint(Sketcher.Constraint("DistanceX", 1, 1, 5, 3, Q("85.8938 mm")))
sketch11.addConstraint(Sketcher.Constraint("DistanceY", 4, 2, 1, 3, Q("13.196299 mm")))
sketch11.addConstraint(Sketcher.Constraint("DistanceX", 4, 2, 5, 1, Q("9.534499 mm")))
sketch11.addConstraint(Sketcher.Constraint("DistanceX", 3, 1, 3, 2, Q("10.265592 mm")))
sketch11.addConstraint(Sketcher.Constraint("DistanceX", 0, 2, -1, 1, Q("8.463959 mm")))
sketch11.addConstraint(Sketcher.Constraint("DistanceY", 1, 1, -1, 1, Q("17.838992 mm")))
sketch11.addConstraint(Sketcher.Constraint("DistanceX", 6, 2, -1, 1, Q("11.613169 mm")))
sketch11.addConstraint(Sketcher.Constraint("DistanceY", -1, 1, 6, 2, Q("12.388082 mm")))
sketch11.addConstraint(Sketcher.Constraint("DistanceX", 1, 3, 0, 2, Q("35.362838 mm")))
pocket10 = doc.addObject("PartDesign::Pocket", "Pocket009")
body.addObject(pocket10)
pocket10.Profile = sketch11
pocket10.setExpression("Length", "Params.pocket10_length")
doc.recompute()

mirrored = doc.addObject("PartDesign::Mirrored", "Mirrored")
body.addObject(mirrored)
mirrored.Originals = [pad1, pocket1, pocket2, pocket3, pocket4, pocket5, pocket6, pocket7, pocket8, pocket9, pocket10]
mirrored.MirrorPlane = (doc.XY_Plane, [""])
body.Tip = mirrored

# Sketch on YZ plane
sketch12 = doc.addObject("Sketcher::SketchObject", "Sketch011")
body.addObject(sketch12)
sketch12.AttachmentSupport = (doc.YZ_Plane, [""])
sketch12.MapMode = "FlatFace"
sketch12.AttachmentOffset = App.Placement(App.Vector(0, 0, 3.014913), App.Rotation())
add_polygon(sketch12, [(-19.6, 247), (-31.6, 247), (-31.6, 243.7), (-21.6, 243.7)])  # lines 0-3
sketch12.addGeometry(Part.LineSegment(App.Vector(-31.6, 247, 0), App.Vector(-19.6, 247, 0)), True)  # axis
sketch12.addConstraint(Sketcher.Constraint("Horizontal", 0))
sketch12.addConstraint(Sketcher.Constraint("Vertical", 1))
sketch12.addConstraint(Sketcher.Constraint("Horizontal", 2))
sketch12.addConstraint(Sketcher.Constraint("Horizontal", 4))
sketch12.addConstraint(Sketcher.Constraint("Coincident", 4, 1, 0, 2))
sketch12.addConstraint(Sketcher.Constraint("Equal", 0, 4))
sketch12.addConstraint(Sketcher.Constraint("DistanceX", 0, 2, 0, 1, Q("12 mm")))
sketch12.addConstraint(Sketcher.Constraint("Angle", 3, Q("59 deg")))
sketch12.addConstraint(Sketcher.Constraint("DistanceY", 1, 2, 1, 1, Q("3.3 mm")))
sketch12.addConstraint(Sketcher.Constraint("DistanceY", -1, 1, 0, 2, Q("247 mm")))
sketch12.addConstraint(Sketcher.Constraint("DistanceX", 0, 2, -1, 1, Q("31.601034 mm")))
sketch12.setExpression("Constraints[10]", "Params.sketch12_width")
sketch12.setExpression("Constraints[12]", "Params.sketch12_height")
groove = doc.addObject("PartDesign::Groove", "Groove")
body.addObject(groove)
groove.Profile = sketch12
groove.ReferenceAxis = (sketch12, ["Axis0"])
groove.setExpression("Angle", "Params.groove_angle")

# Sketch on YZ plane
sketch13 = doc.addObject("Sketcher::SketchObject", "Sketch012")
body.addObject(sketch13)
sketch13.AttachmentSupport = (doc.YZ_Plane, [""])
sketch13.MapMode = "FlatFace"
sketch13.AttachmentOffset = App.Placement(App.Vector(0, 0, 2.950249), App.Rotation())
add_polygon(sketch13, [(-19.6, 146), (-31.6, 146), (-31.6, 142.7), (-21.6, 142.7)])  # lines 0-3
sketch13.addGeometry(Part.LineSegment(App.Vector(-31.6, 146, 0), App.Vector(-19.6, 146, 0)), True)  # axis
sketch13.addConstraint(Sketcher.Constraint("Horizontal", 0))
sketch13.addConstraint(Sketcher.Constraint("Vertical", 1))
sketch13.addConstraint(Sketcher.Constraint("Horizontal", 2))
sketch13.addConstraint(Sketcher.Constraint("Horizontal", 4))
sketch13.addConstraint(Sketcher.Constraint("Coincident", 4, 1, 0, 2))
sketch13.addConstraint(Sketcher.Constraint("Equal", 0, 4))
sketch13.addConstraint(Sketcher.Constraint("DistanceX", 0, 2, 0, 1, Q("12 mm")))
sketch13.addConstraint(Sketcher.Constraint("Angle", 3, Q("59 deg")))
sketch13.addConstraint(Sketcher.Constraint("DistanceY", 1, 2, 1, 1, Q("3.3 mm")))
sketch13.addConstraint(Sketcher.Constraint("DistanceY", -1, 1, 0, 2, Q("146 mm")))
sketch13.addConstraint(Sketcher.Constraint("DistanceX", 0, 2, -1, 1, Q("31.601034 mm")))
sketch13.setExpression("Constraints[10]", "Params.sketch13_width")
sketch13.setExpression("Constraints[12]", "Params.sketch13_height")
groove2 = doc.addObject("PartDesign::Groove", "Groove001")
body.addObject(groove2)
groove2.Profile = sketch13
groove2.ReferenceAxis = (sketch13, ["Axis0"])
groove2.setExpression("Angle", "Params.groove2_angle")

# Sketch on YZ plane
sketch14 = doc.addObject("Sketcher::SketchObject", "Sketch013")
body.addObject(sketch14)
sketch14.AttachmentSupport = (doc.YZ_Plane, [""])
sketch14.MapMode = "FlatFace"
sketch14.AttachmentOffset = App.Placement(App.Vector(0, 0, 3.014913), App.Rotation())
add_polygon(sketch14, [(-19.6, 45), (-31.6, 45), (-31.6, 41.7), (-21.6, 41.7)])  # lines 0-3
sketch14.addGeometry(Part.LineSegment(App.Vector(-31.6, 45, 0), App.Vector(-19.6, 45, 0)), True)  # axis
sketch14.addConstraint(Sketcher.Constraint("Horizontal", 0))
sketch14.addConstraint(Sketcher.Constraint("Vertical", 1))
sketch14.addConstraint(Sketcher.Constraint("Horizontal", 2))
sketch14.addConstraint(Sketcher.Constraint("Horizontal", 4))
sketch14.addConstraint(Sketcher.Constraint("Coincident", 4, 1, 0, 2))
sketch14.addConstraint(Sketcher.Constraint("Equal", 0, 4))
sketch14.addConstraint(Sketcher.Constraint("DistanceX", 0, 2, 0, 1, Q("12 mm")))
sketch14.addConstraint(Sketcher.Constraint("Angle", 3, Q("59 deg")))
sketch14.addConstraint(Sketcher.Constraint("DistanceY", 1, 2, 1, 1, Q("3.3 mm")))
sketch14.addConstraint(Sketcher.Constraint("DistanceY", -1, 1, 0, 2, Q("45 mm")))
sketch14.addConstraint(Sketcher.Constraint("DistanceX", 0, 2, -1, 1, Q("31.601034 mm")))
sketch14.setExpression("Constraints[10]", "Params.sketch14_width")
sketch14.setExpression("Constraints[12]", "Params.sketch14_height")
groove3 = doc.addObject("PartDesign::Groove", "Groove002")
body.addObject(groove3)
groove3.Profile = sketch14
groove3.ReferenceAxis = (sketch14, ["Axis0"])
groove3.setExpression("Angle", "Params.groove3_angle")
doc.recompute()

mirrored2 = doc.addObject("PartDesign::Mirrored", "Mirrored001")
body.addObject(mirrored2)
mirrored2.Originals = [groove, groove2, groove3]
mirrored2.MirrorPlane = (doc.XY_Plane, [""])
body.Tip = mirrored2

doc.recompute()
